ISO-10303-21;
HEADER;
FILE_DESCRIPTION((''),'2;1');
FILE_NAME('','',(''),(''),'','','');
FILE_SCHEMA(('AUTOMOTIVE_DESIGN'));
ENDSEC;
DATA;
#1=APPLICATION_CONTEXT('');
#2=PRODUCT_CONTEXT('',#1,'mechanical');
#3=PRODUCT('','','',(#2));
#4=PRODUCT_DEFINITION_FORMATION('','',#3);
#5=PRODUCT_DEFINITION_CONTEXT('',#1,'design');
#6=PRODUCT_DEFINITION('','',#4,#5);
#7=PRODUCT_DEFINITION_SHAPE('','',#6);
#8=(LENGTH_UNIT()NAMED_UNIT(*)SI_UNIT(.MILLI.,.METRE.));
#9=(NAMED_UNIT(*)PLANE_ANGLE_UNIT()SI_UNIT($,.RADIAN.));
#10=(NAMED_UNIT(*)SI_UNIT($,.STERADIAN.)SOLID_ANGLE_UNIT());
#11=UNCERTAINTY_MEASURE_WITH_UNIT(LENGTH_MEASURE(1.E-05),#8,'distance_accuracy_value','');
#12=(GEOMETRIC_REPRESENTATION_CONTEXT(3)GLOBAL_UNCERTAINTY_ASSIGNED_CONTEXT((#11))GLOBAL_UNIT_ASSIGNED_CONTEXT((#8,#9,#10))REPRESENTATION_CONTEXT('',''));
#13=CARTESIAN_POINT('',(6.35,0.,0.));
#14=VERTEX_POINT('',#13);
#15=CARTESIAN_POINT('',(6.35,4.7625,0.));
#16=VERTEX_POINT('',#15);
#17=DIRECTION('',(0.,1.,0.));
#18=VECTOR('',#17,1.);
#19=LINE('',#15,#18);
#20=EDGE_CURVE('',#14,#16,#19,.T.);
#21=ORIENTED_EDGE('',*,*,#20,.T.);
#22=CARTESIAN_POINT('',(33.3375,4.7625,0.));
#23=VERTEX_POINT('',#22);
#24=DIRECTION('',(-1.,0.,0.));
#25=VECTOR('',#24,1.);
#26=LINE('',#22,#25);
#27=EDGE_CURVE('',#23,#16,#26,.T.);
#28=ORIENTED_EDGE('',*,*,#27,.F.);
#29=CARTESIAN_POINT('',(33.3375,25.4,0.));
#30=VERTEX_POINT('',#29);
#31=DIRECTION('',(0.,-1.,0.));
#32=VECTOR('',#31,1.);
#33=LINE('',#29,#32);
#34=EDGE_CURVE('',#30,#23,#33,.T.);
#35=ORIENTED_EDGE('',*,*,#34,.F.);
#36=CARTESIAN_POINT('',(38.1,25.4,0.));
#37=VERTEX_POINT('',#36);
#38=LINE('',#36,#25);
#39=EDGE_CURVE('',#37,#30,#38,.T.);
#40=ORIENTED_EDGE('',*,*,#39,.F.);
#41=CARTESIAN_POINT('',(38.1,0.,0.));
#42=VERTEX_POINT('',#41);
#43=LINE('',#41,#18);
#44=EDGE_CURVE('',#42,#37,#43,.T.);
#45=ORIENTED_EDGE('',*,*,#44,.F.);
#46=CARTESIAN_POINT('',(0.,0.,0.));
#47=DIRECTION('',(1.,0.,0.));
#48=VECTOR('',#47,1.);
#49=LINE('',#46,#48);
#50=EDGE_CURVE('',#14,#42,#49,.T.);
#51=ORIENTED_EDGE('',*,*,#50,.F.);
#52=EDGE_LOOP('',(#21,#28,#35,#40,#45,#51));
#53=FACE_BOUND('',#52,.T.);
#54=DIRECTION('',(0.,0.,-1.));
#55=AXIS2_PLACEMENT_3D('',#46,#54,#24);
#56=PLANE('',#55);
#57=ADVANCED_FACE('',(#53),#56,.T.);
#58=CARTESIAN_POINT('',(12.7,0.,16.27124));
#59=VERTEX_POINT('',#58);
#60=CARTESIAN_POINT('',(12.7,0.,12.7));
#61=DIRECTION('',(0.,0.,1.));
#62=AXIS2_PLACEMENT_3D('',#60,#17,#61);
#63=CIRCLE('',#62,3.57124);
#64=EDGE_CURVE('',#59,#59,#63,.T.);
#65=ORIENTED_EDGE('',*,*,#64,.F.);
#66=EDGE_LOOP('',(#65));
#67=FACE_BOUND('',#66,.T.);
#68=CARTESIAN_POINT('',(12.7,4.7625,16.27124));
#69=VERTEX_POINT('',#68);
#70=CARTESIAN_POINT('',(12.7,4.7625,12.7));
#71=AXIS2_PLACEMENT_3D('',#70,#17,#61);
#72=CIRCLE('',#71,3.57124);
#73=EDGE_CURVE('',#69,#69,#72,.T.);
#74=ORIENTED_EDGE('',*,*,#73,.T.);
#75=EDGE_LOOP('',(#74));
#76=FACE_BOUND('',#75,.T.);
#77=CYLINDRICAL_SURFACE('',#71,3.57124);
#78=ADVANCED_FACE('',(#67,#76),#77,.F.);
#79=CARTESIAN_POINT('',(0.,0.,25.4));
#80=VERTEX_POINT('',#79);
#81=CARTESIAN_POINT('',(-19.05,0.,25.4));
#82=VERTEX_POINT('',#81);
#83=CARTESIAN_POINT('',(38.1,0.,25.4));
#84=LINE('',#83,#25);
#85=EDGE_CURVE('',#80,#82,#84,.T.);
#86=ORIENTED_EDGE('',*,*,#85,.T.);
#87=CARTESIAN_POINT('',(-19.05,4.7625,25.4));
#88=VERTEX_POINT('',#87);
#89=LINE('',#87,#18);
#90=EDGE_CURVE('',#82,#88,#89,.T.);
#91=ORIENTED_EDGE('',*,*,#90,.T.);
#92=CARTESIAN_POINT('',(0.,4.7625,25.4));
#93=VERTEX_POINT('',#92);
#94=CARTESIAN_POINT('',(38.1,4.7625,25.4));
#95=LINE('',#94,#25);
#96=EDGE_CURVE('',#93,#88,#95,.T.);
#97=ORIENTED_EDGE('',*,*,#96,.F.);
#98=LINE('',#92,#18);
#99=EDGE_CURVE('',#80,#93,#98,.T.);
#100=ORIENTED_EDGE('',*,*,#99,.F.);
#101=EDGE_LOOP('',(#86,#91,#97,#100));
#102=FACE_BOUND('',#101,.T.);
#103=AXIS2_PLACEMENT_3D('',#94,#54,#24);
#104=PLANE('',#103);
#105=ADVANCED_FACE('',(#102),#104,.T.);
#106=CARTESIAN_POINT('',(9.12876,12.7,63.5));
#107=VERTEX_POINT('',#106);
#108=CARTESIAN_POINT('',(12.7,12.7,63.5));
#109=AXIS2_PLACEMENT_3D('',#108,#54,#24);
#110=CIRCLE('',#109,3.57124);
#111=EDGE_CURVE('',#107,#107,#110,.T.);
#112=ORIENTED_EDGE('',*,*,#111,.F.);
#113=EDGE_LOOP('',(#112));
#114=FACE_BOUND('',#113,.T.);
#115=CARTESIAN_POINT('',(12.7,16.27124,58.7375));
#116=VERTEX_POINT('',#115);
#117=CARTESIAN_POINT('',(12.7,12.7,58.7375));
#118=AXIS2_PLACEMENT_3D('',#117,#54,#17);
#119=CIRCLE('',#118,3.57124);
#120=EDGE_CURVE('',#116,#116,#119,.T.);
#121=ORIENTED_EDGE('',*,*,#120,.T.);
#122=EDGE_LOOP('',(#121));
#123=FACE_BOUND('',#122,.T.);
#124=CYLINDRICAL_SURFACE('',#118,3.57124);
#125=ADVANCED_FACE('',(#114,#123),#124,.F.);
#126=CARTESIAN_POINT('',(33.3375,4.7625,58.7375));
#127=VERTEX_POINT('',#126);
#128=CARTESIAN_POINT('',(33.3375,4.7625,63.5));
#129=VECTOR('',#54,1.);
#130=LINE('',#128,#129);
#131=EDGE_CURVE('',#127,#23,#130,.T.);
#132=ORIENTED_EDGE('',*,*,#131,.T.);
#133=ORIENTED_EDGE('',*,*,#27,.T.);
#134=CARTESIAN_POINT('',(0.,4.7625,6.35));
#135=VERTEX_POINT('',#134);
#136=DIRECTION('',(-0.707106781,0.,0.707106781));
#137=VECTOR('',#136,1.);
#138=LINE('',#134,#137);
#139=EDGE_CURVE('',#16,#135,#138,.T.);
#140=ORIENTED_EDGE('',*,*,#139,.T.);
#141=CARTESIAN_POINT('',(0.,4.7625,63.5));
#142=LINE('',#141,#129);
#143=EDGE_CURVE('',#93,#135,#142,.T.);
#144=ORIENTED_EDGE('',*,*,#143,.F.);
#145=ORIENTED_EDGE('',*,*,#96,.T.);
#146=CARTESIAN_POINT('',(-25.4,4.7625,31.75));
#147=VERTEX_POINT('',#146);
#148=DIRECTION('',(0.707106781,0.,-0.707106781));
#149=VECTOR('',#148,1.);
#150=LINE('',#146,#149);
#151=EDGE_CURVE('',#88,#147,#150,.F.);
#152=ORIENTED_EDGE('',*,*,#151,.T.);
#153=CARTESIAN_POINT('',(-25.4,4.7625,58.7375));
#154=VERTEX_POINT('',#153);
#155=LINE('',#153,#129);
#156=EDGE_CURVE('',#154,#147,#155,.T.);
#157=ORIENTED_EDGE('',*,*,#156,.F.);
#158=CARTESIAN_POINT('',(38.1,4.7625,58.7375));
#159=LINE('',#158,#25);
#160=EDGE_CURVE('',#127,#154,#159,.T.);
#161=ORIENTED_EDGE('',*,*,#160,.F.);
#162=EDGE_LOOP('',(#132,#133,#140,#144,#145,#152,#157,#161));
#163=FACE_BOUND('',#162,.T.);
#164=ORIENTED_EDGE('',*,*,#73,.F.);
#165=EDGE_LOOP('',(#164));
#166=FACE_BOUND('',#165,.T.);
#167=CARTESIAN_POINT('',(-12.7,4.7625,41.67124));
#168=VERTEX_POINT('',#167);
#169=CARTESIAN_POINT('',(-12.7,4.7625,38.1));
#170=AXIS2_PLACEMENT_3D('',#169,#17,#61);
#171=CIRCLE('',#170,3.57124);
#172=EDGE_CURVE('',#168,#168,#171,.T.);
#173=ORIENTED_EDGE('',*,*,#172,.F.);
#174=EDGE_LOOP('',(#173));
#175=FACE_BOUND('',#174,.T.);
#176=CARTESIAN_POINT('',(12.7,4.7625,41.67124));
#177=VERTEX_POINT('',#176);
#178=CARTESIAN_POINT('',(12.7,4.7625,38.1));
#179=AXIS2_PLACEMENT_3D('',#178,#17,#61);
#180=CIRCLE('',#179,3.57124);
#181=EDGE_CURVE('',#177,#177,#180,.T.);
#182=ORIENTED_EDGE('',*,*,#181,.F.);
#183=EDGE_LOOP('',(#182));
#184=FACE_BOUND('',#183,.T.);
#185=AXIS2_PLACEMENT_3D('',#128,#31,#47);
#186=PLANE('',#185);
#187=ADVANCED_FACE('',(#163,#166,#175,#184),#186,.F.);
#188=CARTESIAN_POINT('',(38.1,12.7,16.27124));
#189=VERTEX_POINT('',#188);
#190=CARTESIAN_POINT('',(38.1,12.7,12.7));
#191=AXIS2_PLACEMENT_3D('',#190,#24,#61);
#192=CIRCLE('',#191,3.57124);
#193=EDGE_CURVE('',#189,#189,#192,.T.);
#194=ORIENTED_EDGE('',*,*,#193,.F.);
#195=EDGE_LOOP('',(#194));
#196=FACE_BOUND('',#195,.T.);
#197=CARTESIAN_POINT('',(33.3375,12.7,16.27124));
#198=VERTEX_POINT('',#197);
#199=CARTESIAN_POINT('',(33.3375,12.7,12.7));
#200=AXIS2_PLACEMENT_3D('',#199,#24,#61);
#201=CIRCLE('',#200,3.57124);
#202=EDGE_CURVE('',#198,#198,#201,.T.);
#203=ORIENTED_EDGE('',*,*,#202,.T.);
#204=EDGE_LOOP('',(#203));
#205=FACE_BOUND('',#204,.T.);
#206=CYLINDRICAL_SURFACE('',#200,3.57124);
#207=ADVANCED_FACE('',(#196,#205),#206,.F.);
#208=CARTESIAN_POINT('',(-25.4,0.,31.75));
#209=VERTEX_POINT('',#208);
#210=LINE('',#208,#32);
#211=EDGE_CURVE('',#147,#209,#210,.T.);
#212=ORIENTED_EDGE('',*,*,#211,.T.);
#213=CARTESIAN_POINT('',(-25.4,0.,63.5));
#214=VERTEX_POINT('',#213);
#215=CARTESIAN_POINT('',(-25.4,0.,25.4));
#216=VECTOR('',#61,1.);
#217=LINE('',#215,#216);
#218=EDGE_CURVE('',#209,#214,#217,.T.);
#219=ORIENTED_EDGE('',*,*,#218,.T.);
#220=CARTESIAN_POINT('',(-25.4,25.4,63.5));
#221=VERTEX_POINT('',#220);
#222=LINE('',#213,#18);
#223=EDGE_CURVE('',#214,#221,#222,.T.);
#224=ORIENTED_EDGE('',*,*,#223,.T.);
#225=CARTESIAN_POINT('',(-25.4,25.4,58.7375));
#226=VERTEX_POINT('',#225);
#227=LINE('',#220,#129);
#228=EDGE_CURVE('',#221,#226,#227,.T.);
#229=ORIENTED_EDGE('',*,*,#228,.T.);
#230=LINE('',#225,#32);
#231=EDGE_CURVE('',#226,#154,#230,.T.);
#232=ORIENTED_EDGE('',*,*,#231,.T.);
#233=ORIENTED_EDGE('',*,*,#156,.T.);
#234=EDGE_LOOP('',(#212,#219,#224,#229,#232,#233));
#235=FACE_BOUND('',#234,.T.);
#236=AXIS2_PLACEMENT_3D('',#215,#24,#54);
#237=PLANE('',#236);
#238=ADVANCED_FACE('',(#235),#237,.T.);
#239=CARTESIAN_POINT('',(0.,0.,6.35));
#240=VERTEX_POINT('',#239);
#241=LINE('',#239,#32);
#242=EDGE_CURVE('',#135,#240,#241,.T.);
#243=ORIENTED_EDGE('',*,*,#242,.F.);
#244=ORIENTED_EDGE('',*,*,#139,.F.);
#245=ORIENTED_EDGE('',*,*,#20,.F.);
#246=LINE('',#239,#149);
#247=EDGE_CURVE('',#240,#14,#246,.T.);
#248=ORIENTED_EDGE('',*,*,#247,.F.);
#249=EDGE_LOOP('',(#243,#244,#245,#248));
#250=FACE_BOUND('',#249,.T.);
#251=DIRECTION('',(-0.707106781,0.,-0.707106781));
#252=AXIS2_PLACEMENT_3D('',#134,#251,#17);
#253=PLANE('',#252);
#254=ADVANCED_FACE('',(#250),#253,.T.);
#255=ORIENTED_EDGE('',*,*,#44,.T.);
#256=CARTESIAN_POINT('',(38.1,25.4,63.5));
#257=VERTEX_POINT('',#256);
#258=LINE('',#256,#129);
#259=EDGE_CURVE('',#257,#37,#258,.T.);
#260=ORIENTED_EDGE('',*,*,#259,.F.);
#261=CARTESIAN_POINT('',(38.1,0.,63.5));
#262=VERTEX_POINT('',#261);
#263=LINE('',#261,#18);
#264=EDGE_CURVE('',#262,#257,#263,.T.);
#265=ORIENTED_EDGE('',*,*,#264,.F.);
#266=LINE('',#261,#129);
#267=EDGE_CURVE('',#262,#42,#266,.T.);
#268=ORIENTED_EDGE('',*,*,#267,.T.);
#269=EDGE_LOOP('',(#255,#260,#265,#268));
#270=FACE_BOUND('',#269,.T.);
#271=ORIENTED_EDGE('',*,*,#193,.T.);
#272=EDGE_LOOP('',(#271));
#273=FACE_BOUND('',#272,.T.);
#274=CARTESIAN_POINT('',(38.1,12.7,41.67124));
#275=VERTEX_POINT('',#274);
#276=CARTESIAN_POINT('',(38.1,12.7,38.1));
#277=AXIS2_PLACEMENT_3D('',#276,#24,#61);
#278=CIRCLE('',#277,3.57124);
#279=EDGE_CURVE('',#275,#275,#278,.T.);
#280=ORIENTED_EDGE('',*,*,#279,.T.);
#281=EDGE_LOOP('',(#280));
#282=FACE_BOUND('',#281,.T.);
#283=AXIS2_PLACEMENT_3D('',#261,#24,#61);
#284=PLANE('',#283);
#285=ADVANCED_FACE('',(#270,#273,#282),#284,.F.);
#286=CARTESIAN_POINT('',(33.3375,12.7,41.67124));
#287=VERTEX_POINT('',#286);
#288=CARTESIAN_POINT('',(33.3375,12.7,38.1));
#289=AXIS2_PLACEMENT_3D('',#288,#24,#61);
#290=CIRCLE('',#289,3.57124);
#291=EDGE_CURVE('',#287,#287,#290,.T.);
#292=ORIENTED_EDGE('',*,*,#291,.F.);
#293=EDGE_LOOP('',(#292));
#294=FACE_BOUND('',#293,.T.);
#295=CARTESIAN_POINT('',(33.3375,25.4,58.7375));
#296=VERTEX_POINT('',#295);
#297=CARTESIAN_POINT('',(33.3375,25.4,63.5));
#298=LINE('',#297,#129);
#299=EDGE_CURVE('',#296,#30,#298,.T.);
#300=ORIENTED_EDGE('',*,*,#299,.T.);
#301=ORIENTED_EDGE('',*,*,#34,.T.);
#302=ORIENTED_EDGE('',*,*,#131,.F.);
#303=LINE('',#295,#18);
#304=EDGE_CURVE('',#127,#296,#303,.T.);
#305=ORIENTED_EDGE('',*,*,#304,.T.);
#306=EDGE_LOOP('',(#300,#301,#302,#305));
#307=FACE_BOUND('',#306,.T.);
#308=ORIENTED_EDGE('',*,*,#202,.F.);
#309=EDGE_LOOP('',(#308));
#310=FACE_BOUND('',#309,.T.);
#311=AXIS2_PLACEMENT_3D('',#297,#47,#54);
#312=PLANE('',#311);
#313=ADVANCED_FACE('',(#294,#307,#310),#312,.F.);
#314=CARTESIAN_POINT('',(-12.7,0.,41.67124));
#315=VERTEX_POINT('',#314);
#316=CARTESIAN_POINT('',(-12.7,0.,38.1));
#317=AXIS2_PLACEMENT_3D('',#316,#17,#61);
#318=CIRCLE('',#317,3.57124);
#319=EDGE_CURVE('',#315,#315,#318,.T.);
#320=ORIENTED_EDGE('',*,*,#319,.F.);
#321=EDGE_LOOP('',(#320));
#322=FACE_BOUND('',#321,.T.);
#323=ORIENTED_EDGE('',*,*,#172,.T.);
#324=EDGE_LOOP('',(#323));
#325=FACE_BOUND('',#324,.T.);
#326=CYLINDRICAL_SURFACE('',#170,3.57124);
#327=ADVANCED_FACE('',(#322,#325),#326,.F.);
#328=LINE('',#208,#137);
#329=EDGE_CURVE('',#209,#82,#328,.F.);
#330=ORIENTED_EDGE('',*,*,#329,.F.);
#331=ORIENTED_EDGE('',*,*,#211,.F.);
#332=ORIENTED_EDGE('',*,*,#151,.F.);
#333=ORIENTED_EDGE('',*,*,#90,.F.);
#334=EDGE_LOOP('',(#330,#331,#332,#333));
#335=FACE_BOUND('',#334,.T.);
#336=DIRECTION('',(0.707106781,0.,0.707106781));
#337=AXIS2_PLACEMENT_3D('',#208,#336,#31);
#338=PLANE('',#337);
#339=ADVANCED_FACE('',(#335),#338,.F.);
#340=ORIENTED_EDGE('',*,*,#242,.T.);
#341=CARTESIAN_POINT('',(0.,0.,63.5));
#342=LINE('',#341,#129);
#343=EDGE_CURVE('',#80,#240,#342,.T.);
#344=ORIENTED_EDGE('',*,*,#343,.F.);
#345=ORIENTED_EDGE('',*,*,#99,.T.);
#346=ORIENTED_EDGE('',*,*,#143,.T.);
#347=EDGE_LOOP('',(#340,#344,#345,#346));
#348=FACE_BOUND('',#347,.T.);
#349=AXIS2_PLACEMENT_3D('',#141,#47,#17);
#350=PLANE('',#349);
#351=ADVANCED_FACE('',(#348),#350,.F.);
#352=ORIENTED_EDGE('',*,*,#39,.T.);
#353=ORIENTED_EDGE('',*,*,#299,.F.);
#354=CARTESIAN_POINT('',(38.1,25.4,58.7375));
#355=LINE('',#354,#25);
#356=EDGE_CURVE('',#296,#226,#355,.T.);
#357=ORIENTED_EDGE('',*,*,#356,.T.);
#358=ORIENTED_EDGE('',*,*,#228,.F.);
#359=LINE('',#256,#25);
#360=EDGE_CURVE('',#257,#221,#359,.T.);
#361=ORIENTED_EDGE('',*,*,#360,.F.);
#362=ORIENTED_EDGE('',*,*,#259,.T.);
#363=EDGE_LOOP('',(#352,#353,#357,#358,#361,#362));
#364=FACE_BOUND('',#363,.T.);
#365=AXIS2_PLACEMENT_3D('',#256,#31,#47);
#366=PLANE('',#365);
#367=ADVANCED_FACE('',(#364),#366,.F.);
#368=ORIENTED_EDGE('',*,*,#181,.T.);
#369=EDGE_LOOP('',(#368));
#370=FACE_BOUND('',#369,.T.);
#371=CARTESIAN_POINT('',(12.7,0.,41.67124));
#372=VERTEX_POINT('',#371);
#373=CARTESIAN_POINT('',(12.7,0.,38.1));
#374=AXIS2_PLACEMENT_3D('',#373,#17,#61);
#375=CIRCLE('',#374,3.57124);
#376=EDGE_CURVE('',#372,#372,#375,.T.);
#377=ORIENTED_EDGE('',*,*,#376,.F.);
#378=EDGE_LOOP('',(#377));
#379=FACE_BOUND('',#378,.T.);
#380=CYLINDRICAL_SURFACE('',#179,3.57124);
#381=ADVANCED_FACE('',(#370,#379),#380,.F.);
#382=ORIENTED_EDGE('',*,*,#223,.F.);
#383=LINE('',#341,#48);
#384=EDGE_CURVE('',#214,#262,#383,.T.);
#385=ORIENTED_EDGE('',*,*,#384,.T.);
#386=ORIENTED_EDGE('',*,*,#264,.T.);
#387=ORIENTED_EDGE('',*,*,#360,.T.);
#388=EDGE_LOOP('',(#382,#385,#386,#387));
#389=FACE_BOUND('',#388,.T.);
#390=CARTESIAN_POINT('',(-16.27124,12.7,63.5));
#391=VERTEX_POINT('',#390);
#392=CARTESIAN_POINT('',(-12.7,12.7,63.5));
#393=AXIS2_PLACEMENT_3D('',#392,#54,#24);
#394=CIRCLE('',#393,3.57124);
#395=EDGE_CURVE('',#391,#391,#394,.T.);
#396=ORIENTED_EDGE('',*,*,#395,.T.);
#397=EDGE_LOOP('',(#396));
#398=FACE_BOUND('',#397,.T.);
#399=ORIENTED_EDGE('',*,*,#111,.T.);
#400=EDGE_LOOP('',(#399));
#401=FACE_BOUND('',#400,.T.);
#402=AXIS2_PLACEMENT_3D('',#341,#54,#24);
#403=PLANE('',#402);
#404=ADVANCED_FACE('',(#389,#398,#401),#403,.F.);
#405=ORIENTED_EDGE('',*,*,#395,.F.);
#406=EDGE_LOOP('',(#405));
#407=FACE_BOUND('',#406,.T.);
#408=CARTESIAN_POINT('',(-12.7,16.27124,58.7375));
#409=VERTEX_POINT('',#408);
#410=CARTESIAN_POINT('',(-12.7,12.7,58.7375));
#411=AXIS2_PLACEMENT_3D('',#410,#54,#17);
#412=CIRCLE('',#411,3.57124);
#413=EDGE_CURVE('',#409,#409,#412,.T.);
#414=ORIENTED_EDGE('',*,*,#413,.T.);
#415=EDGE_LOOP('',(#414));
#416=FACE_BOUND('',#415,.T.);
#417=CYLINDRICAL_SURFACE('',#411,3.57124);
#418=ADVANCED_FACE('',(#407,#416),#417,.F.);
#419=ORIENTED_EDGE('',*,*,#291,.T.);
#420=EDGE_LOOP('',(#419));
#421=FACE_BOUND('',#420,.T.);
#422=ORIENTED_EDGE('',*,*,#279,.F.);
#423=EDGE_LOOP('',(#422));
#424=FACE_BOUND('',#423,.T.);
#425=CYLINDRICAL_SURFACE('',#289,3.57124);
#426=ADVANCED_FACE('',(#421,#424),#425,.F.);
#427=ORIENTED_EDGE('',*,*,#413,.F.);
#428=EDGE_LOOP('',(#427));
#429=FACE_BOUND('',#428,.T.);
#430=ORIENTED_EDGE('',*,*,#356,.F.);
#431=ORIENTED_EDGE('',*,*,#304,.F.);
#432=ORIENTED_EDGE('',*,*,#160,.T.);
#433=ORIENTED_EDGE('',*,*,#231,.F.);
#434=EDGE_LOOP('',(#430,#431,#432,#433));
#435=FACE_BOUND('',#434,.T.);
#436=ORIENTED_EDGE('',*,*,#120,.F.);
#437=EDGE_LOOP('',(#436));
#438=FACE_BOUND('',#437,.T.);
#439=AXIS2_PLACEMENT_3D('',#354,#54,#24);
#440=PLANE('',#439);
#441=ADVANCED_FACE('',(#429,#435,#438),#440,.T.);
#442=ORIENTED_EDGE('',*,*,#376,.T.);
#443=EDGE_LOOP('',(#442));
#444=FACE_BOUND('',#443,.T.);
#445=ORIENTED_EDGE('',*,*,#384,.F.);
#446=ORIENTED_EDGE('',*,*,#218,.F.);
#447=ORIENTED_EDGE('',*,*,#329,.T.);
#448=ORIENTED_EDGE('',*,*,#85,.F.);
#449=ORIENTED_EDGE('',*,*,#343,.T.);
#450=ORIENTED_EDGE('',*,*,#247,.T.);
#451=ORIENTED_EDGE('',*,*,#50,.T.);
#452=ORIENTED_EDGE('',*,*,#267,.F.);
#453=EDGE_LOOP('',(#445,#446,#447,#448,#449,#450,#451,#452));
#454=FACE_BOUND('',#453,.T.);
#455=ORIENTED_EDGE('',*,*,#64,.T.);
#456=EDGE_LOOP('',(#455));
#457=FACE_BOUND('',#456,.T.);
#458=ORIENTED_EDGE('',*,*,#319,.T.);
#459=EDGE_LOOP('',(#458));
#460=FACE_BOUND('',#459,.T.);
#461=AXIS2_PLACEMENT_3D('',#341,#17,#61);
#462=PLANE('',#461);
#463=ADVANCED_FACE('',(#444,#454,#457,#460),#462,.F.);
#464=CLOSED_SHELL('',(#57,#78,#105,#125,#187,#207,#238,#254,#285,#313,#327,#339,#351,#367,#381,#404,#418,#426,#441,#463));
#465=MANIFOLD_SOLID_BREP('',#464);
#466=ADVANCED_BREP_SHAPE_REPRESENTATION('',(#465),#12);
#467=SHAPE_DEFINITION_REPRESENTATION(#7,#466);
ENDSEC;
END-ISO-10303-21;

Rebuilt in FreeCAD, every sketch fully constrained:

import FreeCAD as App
import Part
import Sketcher
from FreeCAD import Vector
Q = App.Units.Quantity


def edges_at(feature, points):
    """Names of the edges that pass closest to the given points."""
    edges = feature.Shape.Edges
    near = lambda p: min(range(len(edges)), key=lambda i: edges[i].distToShape(Part.Vertex(*p))[0])
    return sorted({f"Edge{near(p) + 1}" for p in points})


def add_polygon(sketch, points):
    """Adds a closed chain of lines whose ends are joined by coincident constraints."""
    first, n = sketch.GeometryCount, len(points)
    for a, b in zip(points, points[1:] + points[:1]):
        sketch.addGeometry(Part.LineSegment(App.Vector(*a, 0), App.Vector(*b, 0)), False)
    for i in range(n):
        sketch.addConstraint(Sketcher.Constraint("Coincident", first + i, 2, first + (i + 1) % n, 1))

doc = App.newDocument("Part")
body = doc.addObject("PartDesign::Body", "Body")

# Sketch on XY plane
sketch1 = body.newObject("Sketcher::SketchObject", "Sketch")
sketch1.AttachmentSupport = (doc.getObject("XY_Plane"), [""])
sketch1.MapMode = "FlatFace"
add_polygon(sketch1, [(0, 0), (38.1, 0), (38.1, 25.4), (33.3, 25.4), (33.3, 4.8), (0, 4.8)])  # lines 0-5
sketch1.addConstraint([
    Sketcher.Constraint("Horizontal", 0),
    Sketcher.Constraint("Vertical", 1),
    Sketcher.Constraint("Horizontal", 2),
    Sketcher.Constraint("Vertical", 3),
    Sketcher.Constraint("Horizontal", 4),
    Sketcher.Constraint("Vertical", 5),
    Sketcher.Constraint("Coincident", 5, 2, -1, 1),
    Sketcher.Constraint("Equal", 2, 5),
    Sketcher.Constraint("DistanceY", 1, 1, 1, 2, Q("1 in")),
    Sketcher.Constraint("DistanceX", 0, 1, 0, 2, Q("1.5 in")),
    Sketcher.Constraint("DistanceX", 2, 2, 2, 1, Q("0.1875 in")),
])
pad1 = body.newObject("PartDesign::Pad", "Pad")
pad1.Profile = sketch1
pad1.Length = Q("2.5 in")

# Sketch on XZ plane
sketch2 = body.newObject("Sketcher::SketchObject", "Sketch001")
sketch2.AttachmentSupport = (doc.getObject("XZ_Plane"), [""])
sketch2.MapMode = "FlatFace"
sketch2.AttachmentOffset = App.Placement(Vector(0, 0, -0.1875 * 25.4), App.Rotation())
sketch2.addGeometry([
    Part.Circle(Vector(12.7, 12.7, 0), Vector(0, 0, 1), 3.6),
    Part.Circle(Vector(12.7, 38.1, 0), Vector(0, 0, 1), 3.6),
], False)
sketch2.addConstraint([
    Sketcher.Constraint("Equal", 0, 1),
    Sketcher.Constraint("Vertical", 0, 3, 1, 3),
    Sketcher.Constraint("DistanceY", 0, 3, 1, 3, Q("1 in")),
    Sketcher.Constraint("Diameter", 0, Q("0.2812 in")),
    Sketcher.Constraint("DistanceX", -1, 1, 0, 3, Q("0.5 in")),
    Sketcher.Constraint("DistanceY", -1, 1, 0, 3, Q("0.5 in")),
])
doc.recompute()
hole = body.newObject("PartDesign::Hole", "Hole")
hole.Profile = sketch2
hole.ThreadType = "None"
hole.Diameter = Q("0.2812 in")
hole.DepthType = "ThroughAll"
hole.Reversed = True

# Sketch on YZ plane
sketch3 = body.newObject("Sketcher::SketchObject", "Sketch002")
sketch3.AttachmentSupport = (doc.getObject("YZ_Plane"), [""])
sketch3.MapMode = "FlatFace"
sketch3.AttachmentOffset = App.Placement(Vector(0, 0, 1.3125 * 25.4), App.Rotation())
sketch3.addGeometry([
    Part.Circle(Vector(12.7, 38.1, 0), Vector(0, 0, 1), 3.6),
    Part.Circle(Vector(12.7, 12.7, 0), Vector(0, 0, 1), 3.6),
], False)
sketch3.addConstraint([
    Sketcher.Constraint("Equal", 0, 1),
    Sketcher.Constraint("Vertical", 0, 3, 1, 3),
    Sketcher.Constraint("DistanceY", 1, 3, 0, 3, Q("1 in")),
    Sketcher.Constraint("Diameter", 0, Q("0.2812 in")),
    Sketcher.Constraint("DistanceX", -1, 1, 0, 3, Q("0.5 in")),
    Sketcher.Constraint("DistanceY", -1, 1, 0, 3, Q("1.5 in")),
])
doc.recompute()
hole2 = body.newObject("PartDesign::Hole", "Hole001")
hole2.Profile = sketch3
hole2.ThreadType = "None"
hole2.Diameter = Q("0.2812 in")
hole2.DepthType = "ThroughAll"
hole2.Reversed = True
doc.recompute()

datumplane = body.newObject("PartDesign::Plane", "DatumPlane")
datumplane.Placement = App.Placement(Vector(-12.7, 0, 12.7), App.Rotation(Vector(0.707106781, 0, 0.707106781), Vector(0, -1, 0), Vector(0.707106781, 0, -0.707106781), "ZXY"))
mirrored = body.newObject("PartDesign::Mirrored", "Mirrored")
mirrored.Originals = [pad1, hole, hole2]
mirrored.MirrorPlane = (datumplane, [""])
body.Tip = mirrored
doc.recompute()

chamfer = body.newObject("PartDesign::Chamfer", "Chamfer")
chamfer.Base = (mirrored, edges_at(mirrored, [(-25.4, 2.381, 25.4), (0, 2.381, 0)]))
chamfer.Size = Q("0.25 in")

doc.recompute()
